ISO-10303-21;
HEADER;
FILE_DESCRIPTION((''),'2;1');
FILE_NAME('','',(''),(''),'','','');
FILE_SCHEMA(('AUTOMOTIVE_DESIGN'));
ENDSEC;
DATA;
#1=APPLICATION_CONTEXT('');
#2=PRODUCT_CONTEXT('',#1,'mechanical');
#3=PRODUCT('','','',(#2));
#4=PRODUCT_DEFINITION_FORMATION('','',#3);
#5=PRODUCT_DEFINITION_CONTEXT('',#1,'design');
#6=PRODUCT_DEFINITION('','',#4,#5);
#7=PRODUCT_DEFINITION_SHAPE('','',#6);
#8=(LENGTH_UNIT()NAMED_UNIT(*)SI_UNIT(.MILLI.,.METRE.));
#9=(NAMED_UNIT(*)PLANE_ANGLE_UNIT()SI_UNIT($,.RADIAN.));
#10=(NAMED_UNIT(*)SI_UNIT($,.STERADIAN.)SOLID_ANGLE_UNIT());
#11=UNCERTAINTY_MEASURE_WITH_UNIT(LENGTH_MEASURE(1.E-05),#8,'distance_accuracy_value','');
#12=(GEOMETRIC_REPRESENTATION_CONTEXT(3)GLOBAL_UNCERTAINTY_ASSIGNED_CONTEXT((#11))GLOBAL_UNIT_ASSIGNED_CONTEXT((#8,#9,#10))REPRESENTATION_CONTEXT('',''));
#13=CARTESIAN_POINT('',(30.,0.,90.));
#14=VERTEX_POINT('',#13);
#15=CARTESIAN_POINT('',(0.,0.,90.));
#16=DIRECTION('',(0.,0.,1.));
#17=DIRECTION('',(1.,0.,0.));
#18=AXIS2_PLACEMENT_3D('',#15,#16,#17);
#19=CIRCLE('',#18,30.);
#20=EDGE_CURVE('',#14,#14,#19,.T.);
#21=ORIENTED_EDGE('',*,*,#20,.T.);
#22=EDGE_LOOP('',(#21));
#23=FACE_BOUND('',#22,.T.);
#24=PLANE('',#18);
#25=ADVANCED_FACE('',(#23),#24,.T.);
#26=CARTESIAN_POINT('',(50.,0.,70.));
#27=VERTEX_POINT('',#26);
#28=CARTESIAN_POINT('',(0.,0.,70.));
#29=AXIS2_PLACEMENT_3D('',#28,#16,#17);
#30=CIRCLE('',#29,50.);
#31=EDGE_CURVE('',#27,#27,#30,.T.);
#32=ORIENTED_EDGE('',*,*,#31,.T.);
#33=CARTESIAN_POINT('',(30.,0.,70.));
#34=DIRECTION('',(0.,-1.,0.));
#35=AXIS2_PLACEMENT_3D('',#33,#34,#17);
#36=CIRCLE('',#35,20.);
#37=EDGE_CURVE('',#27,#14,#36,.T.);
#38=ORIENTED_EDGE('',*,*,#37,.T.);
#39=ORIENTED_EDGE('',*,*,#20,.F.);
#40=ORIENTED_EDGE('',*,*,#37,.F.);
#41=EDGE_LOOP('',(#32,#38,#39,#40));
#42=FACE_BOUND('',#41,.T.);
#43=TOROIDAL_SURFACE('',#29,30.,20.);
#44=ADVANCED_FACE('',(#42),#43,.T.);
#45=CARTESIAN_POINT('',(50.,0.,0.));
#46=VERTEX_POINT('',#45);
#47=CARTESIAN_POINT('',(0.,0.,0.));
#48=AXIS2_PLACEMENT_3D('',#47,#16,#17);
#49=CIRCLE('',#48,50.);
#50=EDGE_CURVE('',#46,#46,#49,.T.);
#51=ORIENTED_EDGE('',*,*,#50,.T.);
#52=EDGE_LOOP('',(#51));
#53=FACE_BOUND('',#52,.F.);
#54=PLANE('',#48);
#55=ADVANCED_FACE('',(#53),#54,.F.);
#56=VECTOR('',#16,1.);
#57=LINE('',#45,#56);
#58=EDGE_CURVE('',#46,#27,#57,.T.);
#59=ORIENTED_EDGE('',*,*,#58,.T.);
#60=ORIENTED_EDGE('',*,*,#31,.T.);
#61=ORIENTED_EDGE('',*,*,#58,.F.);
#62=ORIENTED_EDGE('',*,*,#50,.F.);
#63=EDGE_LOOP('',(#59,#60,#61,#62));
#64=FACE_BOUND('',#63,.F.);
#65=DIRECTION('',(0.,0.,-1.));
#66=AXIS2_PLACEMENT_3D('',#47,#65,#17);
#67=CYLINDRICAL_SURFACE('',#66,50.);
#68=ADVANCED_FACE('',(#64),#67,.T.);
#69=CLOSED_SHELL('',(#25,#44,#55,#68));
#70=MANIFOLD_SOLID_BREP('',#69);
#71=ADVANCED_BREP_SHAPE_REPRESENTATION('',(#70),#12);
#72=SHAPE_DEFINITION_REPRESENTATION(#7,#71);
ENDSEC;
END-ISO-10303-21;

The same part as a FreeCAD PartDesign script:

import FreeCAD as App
import Part
import Sketcher
from FreeCAD import Vector
Q = App.Units.Quantity


def edges_at(feature, points):
    """Names of the edges that pass closest to the given points."""
    edges = feature.Shape.Edges
    near = lambda p: min(range(len(edges)), key=lambda i: edges[i].distToShape(Part.Vertex(*p))[0])
    return sorted({f"Edge{near(p) + 1}" for p in points})

doc = App.newDocument("Part")
body = doc.addObject("PartDesign::Body", "Body")

# Sketch on XY plane
sketch1 = body.newObject("Sketcher::SketchObject", "Sketch")
sketch1.AttachmentSupport = (doc.getObject("XY_Plane"), [""])
sketch1.MapMode = "FlatFace"
sketch1.addGeometry(Part.Circle(Vector(0, 0, 0), Vector(0, 0, 1), 50), False)
sketch1.addConstraint(Sketcher.Constraint("Coincident", 0, 3, -1, 1))
sketch1.addConstraint(Sketcher.Constraint("Diameter", 0, Q("3.937 in")))
pad1 = body.newObject("PartDesign::Pad", "Pad")
pad1.Profile = sketch1
pad1.Length = Q("3.5433071 in")
doc.recompute()

fillet = body.newObject("PartDesign::Fillet", "Fillet")
fillet.Base = (pad1, edges_at(pad1, [(-46.616, -18.081, 90)]))
fillet.Radius = Q("0.7874016 in")

doc.recompute()
